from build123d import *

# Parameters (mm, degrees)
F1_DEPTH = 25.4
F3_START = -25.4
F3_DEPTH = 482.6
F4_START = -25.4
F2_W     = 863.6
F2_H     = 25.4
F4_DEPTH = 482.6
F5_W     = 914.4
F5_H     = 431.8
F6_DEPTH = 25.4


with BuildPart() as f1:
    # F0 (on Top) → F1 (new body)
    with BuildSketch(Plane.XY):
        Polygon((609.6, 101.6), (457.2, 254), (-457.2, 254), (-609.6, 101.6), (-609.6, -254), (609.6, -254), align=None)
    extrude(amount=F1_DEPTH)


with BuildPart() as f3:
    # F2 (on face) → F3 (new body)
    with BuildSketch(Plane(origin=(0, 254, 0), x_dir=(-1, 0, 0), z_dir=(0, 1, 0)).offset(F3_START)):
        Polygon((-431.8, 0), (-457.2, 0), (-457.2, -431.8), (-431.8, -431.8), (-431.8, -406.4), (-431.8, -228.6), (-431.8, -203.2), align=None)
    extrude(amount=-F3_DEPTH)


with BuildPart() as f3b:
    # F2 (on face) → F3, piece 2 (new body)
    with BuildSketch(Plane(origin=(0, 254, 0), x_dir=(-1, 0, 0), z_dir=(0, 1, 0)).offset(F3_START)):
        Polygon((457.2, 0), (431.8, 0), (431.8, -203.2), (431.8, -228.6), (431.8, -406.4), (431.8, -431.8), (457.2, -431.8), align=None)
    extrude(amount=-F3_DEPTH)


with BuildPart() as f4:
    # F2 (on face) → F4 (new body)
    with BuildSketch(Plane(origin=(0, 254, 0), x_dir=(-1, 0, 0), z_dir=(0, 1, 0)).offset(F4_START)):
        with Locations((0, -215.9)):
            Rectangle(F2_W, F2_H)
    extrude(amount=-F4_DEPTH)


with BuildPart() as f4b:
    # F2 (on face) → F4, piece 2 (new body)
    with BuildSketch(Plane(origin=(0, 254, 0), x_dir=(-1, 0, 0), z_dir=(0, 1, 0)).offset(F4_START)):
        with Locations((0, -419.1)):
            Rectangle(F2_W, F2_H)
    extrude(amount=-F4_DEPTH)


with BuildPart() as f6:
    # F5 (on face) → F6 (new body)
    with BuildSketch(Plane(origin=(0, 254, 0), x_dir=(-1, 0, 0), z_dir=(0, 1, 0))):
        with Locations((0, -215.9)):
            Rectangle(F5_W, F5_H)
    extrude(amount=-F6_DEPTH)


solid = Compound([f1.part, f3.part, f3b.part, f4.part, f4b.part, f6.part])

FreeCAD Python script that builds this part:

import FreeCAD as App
import Part
import Sketcher

V = App.Vector
Q = App.Units.Quantity

doc = App.newDocument("Part")
body = doc.addObject("PartDesign::Body", "Body")

# Sketch on XY plane
sketch1 = body.newObject("Sketcher::SketchObject", "Sketch")
sketch1.AttachmentSupport = (doc.getObject("XY_Plane"), [""])
sketch1.MapMode = "FlatFace"
sketch1.addGeometry(Part.LineSegment(V(610, 102, 0), V(457, 254, 0)), False)
sketch1.addGeometry(Part.LineSegment(V(457, 254, 0), V(-457, 254, 0)), False)
sketch1.addGeometry(Part.LineSegment(V(-457, 254, 0), V(-610, 102, 0)), False)
sketch1.addGeometry(Part.LineSegment(V(-610, 102, 0), V(-610, -254, 0)), False)
sketch1.addGeometry(Part.LineSegment(V(-610, -254, 0), V(610, -254, 0)), False)
sketch1.addGeometry(Part.LineSegment(V(610, -254, 0), V(610, 102, 0)), False)
sketch1.addConstraint(Sketcher.Constraint("Coincident", 0, 2, 1, 1))
sketch1.addConstraint(Sketcher.Constraint("Coincident", 1, 2, 2, 1))
sketch1.addConstraint(Sketcher.Constraint("Coincident", 2, 2, 3, 1))
sketch1.addConstraint(Sketcher.Constraint("Coincident", 3, 2, 4, 1))
sketch1.addConstraint(Sketcher.Constraint("Coincident", 4, 2, 5, 1))
sketch1.addConstraint(Sketcher.Constraint("Coincident", 5, 2, 0, 1))
sketch1.addConstraint(Sketcher.Constraint("Horizontal", 1))
sketch1.addConstraint(Sketcher.Constraint("Vertical", 3))
sketch1.addConstraint(Sketcher.Constraint("Horizontal", 4))
sketch1.addConstraint(Sketcher.Constraint("Vertical", 5))
sketch1.addConstraint(Sketcher.Constraint("Symmetric", 2, 2, 5, 2, -2))
sketch1.addConstraint(Sketcher.Constraint("Perpendicular", 0, 2))
sketch1.addConstraint(Sketcher.Constraint("Equal", 0, 2))
sketch1.addConstraint(Sketcher.Constraint("DistanceX", 1, 2, 1, 1, Q("36 in")))
sketch1.addConstraint(Sketcher.Constraint("DistanceX", 4, 1, 4, 2, Q("48 in")))
sketch1.addConstraint(Sketcher.Constraint("DistanceY", 3, 2, 3, 1, Q("14 in")))
sketch1.addConstraint(Sketcher.Constraint("DistanceY", -1, 1, 0, 2, Q("10 in")))
pad1 = body.newObject("PartDesign::Pad", "Pad")
pad1.Profile = sketch1
pad1.Length = Q("1 in")
body2 = doc.addObject("PartDesign::Body", "Body001")

# Sketch on XZ plane
sketch2 = body2.newObject("Sketcher::SketchObject", "Sketch001")
sketch2.AttachmentSupport = (doc.getObject("XZ_Plane001"), [""])
sketch2.MapMode = "FlatFace"
sketch2.AttachmentOffset = App.Placement(V(0, 0, -9 * 25.4), App.Rotation())
sketch2.addGeometry(Part.LineSegment(V(432, 0, 0), V(457, 0, 0)), False)
sketch2.addGeometry(Part.LineSegment(V(457, 0, 0), V(457, -432, 0)), False)
sketch2.addGeometry(Part.LineSegment(V(457, -432, 0), V(432, -432, 0)), False)
sketch2.addGeometry(Part.LineSegment(V(432, -432, 0), V(432, 0, 0)), False)
sketch2.addConstraint(Sketcher.Constraint("Coincident", 0, 2, 1, 1))
sketch2.addConstraint(Sketcher.Constraint("Coincident", 1, 2, 2, 1))
sketch2.addConstraint(Sketcher.Constraint("Coincident", 2, 2, 3, 1))
sketch2.addConstraint(Sketcher.Constraint("Coincident", 3, 2, 0, 1))
sketch2.addConstraint(Sketcher.Constraint("Horizontal", 0))
sketch2.addConstraint(Sketcher.Constraint("Vertical", 1))
sketch2.addConstraint(Sketcher.Constraint("Horizontal", 2))
sketch2.addConstraint(Sketcher.Constraint("Vertical", 3))
sketch2.addConstraint(Sketcher.Constraint("PointOnObject", 0, 2, -1))
sketch2.addConstraint(Sketcher.Constraint("DistanceX", 0, 1, 0, 2, Q("1 in")))
sketch2.addConstraint(Sketcher.Constraint("DistanceY", 1, 2, 1, 1, Q("17 in")))
sketch2.addConstraint(Sketcher.Constraint("DistanceX", -1, 1, 0, 2, Q("18 in")))
pad2 = body2.newObject("PartDesign::Pad", "Pad001")
pad2.Profile = sketch2
pad2.Length = Q("19 in")
body3 = doc.addObject("PartDesign::Body", "Body002")

# Sketch on XZ plane
sketch3 = body3.newObject("Sketcher::SketchObject", "Sketch002")
sketch3.AttachmentSupport = (doc.getObject("XZ_Plane002"), [""])
sketch3.MapMode = "FlatFace"
sketch3.AttachmentOffset = App.Placement(V(0, 0, -9 * 25.4), App.Rotation())
sketch3.addGeometry(Part.LineSegment(V(-457, 0, 0), V(-432, 0, 0)), False)
sketch3.addGeometry(Part.LineSegment(V(-432, 0, 0), V(-432, -432, 0)), False)
sketch3.addGeometry(Part.LineSegment(V(-432, -432, 0), V(-457, -432, 0)), False)
sketch3.addGeometry(Part.LineSegment(V(-457, -432, 0), V(-457, 0, 0)), False)
sketch3.addConstraint(Sketcher.Constraint("Coincident", 0, 2, 1, 1))
sketch3.addConstraint(Sketcher.Constraint("Coincident", 1, 2, 2, 1))
sketch3.addConstraint(Sketcher.Constraint("Coincident", 2, 2, 3, 1))
sketch3.addConstraint(Sketcher.Constraint("Coincident", 3, 2, 0, 1))
sketch3.addConstraint(Sketcher.Constraint("Horizontal", 0))
sketch3.addConstraint(Sketcher.Constraint("Vertical", 1))
sketch3.addConstraint(Sketcher.Constraint("Horizontal", 2))
sketch3.addConstraint(Sketcher.Constraint("Vertical", 3))
sketch3.addConstraint(Sketcher.Constraint("PointOnObject", 0, 2, -1))
sketch3.addConstraint(Sketcher.Constraint("DistanceX", 0, 1, 0, 2, Q("1 in")))
sketch3.addConstraint(Sketcher.Constraint("DistanceY", 1, 2, 1, 1, Q("17 in")))
sketch3.addConstraint(Sketcher.Constraint("DistanceX", 0, 2, -1, 1, Q("17 in")))
pad3 = body3.newObject("PartDesign::Pad", "Pad002")
pad3.Profile = sketch3
pad3.Length = Q("19 in")
body4 = doc.addObject("PartDesign::Body", "Body003")

# Sketch on XZ plane
sketch4 = body4.newObject("Sketcher::SketchObject", "Sketch003")
sketch4.AttachmentSupport = (doc.getObject("XZ_Plane003"), [""])
sketch4.MapMode = "FlatFace"
sketch4.AttachmentOffset = App.Placement(V(0, 0, -9 * 25.4), App.Rotation())
sketch4.addGeometry(Part.LineSegment(V(432, -203, 0), V(432, -229, 0)), False)
sketch4.addGeometry(Part.LineSegment(V(432, -229, 0), V(-432, -229, 0)), False)
sketch4.addGeometry(Part.LineSegment(V(-432, -229, 0), V(-432, -203, 0)), False)
sketch4.addGeometry(Part.LineSegment(V(-432, -203, 0), V(432, -203, 0)), False)
sketch4.addConstraint(Sketcher.Constraint("Coincident", 0, 2, 1, 1))
sketch4.addConstraint(Sketcher.Constraint("Coincident", 1, 2, 2, 1))
sketch4.addConstraint(Sketcher.Constraint("Coincident", 2, 2, 3, 1))
sketch4.addConstraint(Sketcher.Constraint("Coincident", 3, 2, 0, 1))
sketch4.addConstraint(Sketcher.Constraint("Vertical", 0))
sketch4.addConstraint(Sketcher.Constraint("Horizontal", 1))
sketch4.addConstraint(Sketcher.Constraint("Vertical", 2))
sketch4.addConstraint(Sketcher.Constraint("Horizontal", 3))
sketch4.addConstraint(Sketcher.Constraint("DistanceX", 1, 2, 1, 1, Q("34 in")))
sketch4.addConstraint(Sketcher.Constraint("DistanceY", 0, 2, 0, 1, Q("1 in")))
sketch4.addConstraint(Sketcher.Constraint("DistanceX", -1, 1, 0, 2, Q("17 in")))
sketch4.addConstraint(Sketcher.Constraint("DistanceY", 0, 2, -1, 1, Q("9 in")))
pad4 = body4.newObject("PartDesign::Pad", "Pad003")
pad4.Profile = sketch4
pad4.Length = Q("19 in")
body5 = doc.addObject("PartDesign::Body", "Body004")

# Sketch on XZ plane
sketch5 = body5.newObject("Sketcher::SketchObject", "Sketch004")
sketch5.AttachmentSupport = (doc.getObject("XZ_Plane004"), [""])
sketch5.MapMode = "FlatFace"
sketch5.AttachmentOffset = App.Placement(V(0, 0, -9 * 25.4), App.Rotation())
sketch5.addGeometry(Part.LineSegment(V(432, -406, 0), V(432, -432, 0)), False)
sketch5.addGeometry(Part.LineSegment(V(432, -432, 0), V(-432, -432, 0)), False)
sketch5.addGeometry(Part.LineSegment(V(-432, -432, 0), V(-432, -406, 0)), False)
sketch5.addGeometry(Part.LineSegment(V(-432, -406, 0), V(432, -406, 0)), False)
sketch5.addConstraint(Sketcher.Constraint("Coincident", 0, 2, 1, 1))
sketch5.addConstraint(Sketcher.Constraint("Coincident", 1, 2, 2, 1))
sketch5.addConstraint(Sketcher.Constraint("Coincident", 2, 2, 3, 1))
sketch5.addConstraint(Sketcher.Constraint("Coincident", 3, 2, 0, 1))
sketch5.addConstraint(Sketcher.Constraint("Vertical", 0))
sketch5.addConstraint(Sketcher.Constraint("Horizontal", 1))
sketch5.addConstraint(Sketcher.Constraint("Vertical", 2))
sketch5.addConstraint(Sketcher.Constraint("Horizontal", 3))
sketch5.addConstraint(Sketcher.Constraint("DistanceX", 1, 2, 1, 1, Q("34 in")))
sketch5.addConstraint(Sketcher.Constraint("DistanceY", 0, 2, 0, 1, Q("1 in")))
sketch5.addConstraint(Sketcher.Constraint("DistanceX", -1, 1, 0, 2, Q("17 in")))
sketch5.addConstraint(Sketcher.Constraint("DistanceY", 0, 2, -1, 1, Q("17 in")))
pad5 = body5.newObject("PartDesign::Pad", "Pad004")
pad5.Profile = sketch5
pad5.Length = Q("19 in")
body6 = doc.addObject("PartDesign::Body", "Body005")

# Sketch on XZ plane
sketch6 = body6.newObject("Sketcher::SketchObject", "Sketch005")
sketch6.AttachmentSupport = (doc.getObject("XZ_Plane005"), [""])
sketch6.MapMode = "FlatFace"
sketch6.AttachmentOffset = App.Placement(V(0, 0, -10 * 25.4), App.Rotation())
sketch6.addGeometry(Part.LineSegment(V(457, 0, 0), V(457, -432, 0)), False)
sketch6.addGeometry(Part.LineSegment(V(457, -432, 0), V(-457, -432, 0)), False)
sketch6.addGeometry(Part.LineSegment(V(-457, -432, 0), V(-457, 0, 0)), False)
sketch6.addGeometry(Part.LineSegment(V(-457, 0, 0), V(457, 0, 0)), False)
sketch6.addConstraint(Sketcher.Constraint("Coincident", 0, 2, 1, 1))
sketch6.addConstraint(Sketcher.Constraint("Coincident", 1, 2, 2, 1))
sketch6.addConstraint(Sketcher.Constraint("Coincident", 2, 2, 3, 1))
sketch6.addConstraint(Sketcher.Constraint("Coincident", 3, 2, 0, 1))
sketch6.addConstraint(Sketcher.Constraint("Vertical", 0))
sketch6.addConstraint(Sketcher.Constraint("Horizontal", 1))
sketch6.addConstraint(Sketcher.Constraint("Vertical", 2))
sketch6.addConstraint(Sketcher.Constraint("Horizontal", 3))
sketch6.addConstraint(Sketcher.Constraint("Symmetric", 2, 2, 3, 2, -1, 1))
sketch6.addConstraint(Sketcher.Constraint("DistanceX", 1, 2, 1, 1, Q("36 in")))
sketch6.addConstraint(Sketcher.Constraint("DistanceY", 0, 2, 0, 1, Q("17 in")))
pad6 = body6.newObject("PartDesign::Pad", "Pad005")
pad6.Profile = sketch6
pad6.Length = Q("1 in")

doc.recompute()
